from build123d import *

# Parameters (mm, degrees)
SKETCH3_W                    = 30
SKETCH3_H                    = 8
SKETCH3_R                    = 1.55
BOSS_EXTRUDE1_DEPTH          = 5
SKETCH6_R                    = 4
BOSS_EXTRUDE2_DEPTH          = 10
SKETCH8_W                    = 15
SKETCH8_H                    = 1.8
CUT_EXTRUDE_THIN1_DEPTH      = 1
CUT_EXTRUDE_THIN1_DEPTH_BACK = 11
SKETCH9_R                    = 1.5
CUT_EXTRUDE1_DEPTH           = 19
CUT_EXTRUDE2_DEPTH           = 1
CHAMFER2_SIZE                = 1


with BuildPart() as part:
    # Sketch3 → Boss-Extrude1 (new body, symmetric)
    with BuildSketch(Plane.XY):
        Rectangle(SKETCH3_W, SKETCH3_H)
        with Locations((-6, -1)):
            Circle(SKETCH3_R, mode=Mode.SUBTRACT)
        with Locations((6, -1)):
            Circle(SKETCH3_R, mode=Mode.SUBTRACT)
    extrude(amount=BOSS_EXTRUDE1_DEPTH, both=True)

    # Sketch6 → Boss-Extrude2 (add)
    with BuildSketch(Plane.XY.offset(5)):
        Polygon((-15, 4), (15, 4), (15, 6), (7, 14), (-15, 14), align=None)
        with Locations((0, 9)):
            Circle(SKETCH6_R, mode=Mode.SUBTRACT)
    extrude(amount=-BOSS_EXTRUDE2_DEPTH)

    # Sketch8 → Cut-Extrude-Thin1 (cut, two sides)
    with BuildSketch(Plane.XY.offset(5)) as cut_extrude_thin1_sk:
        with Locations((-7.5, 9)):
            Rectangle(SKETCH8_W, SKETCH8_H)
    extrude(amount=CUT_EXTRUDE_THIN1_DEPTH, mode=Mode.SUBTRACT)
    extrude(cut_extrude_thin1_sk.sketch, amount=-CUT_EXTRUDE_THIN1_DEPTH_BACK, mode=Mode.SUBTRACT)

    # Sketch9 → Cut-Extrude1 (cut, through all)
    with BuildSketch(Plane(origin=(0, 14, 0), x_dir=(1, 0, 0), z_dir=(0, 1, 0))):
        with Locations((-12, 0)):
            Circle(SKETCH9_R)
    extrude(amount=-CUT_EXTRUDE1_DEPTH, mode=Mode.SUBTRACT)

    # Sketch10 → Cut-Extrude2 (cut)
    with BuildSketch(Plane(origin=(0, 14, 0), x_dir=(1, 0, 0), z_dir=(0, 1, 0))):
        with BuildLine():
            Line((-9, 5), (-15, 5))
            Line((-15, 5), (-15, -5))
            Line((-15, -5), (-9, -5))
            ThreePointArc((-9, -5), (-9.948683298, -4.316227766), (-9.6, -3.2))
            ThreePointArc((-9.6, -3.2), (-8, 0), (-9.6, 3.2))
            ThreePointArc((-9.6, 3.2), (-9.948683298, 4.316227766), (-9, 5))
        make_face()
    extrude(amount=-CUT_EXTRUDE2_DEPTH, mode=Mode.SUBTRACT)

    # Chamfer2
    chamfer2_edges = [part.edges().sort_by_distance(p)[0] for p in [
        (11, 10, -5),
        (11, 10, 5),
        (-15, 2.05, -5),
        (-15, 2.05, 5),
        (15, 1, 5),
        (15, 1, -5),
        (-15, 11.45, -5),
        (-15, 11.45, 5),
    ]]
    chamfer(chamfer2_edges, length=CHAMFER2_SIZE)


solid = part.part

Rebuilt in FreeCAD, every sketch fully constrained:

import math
import FreeCAD as App
import Part
import Sketcher

V = App.Vector
Q = App.Units.Quantity


def edges_at(feature, points):
    """Names of the edges that pass closest to the given points."""
    edges = feature.Shape.Edges
    near = lambda p: min(range(len(edges)), key=lambda i: edges[i].distToShape(Part.Vertex(*p))[0])
    return sorted({f"Edge{near(p) + 1}" for p in points})


def add_polygon(sketch, points):
    """Adds a closed chain of lines whose ends are joined by coincident constraints."""
    first, n = sketch.GeometryCount, len(points)
    for a, b in zip(points, points[1:] + points[:1]):
        sketch.addGeometry(Part.LineSegment(App.Vector(*a, 0), App.Vector(*b, 0)), False)
    for i in range(n):
        sketch.addConstraint(Sketcher.Constraint("Coincident", first + i, 2, first + (i + 1) % n, 1))

doc = App.newDocument("Part")
body = doc.addObject("PartDesign::Body", "Body")

sketch1 = body.newObject("Sketcher::SketchObject", "Sketch")
sketch1.AttachmentSupport = (doc.getObject("XY_Plane"), [""])
sketch1.MapMode = "FlatFace"
add_polygon(sketch1, [(-15, 4), (-15, -4), (15, -4), (15, 4)])
sketch1.addGeometry(Part.Circle(V(-6, -1, 0), V(0, 0, 1), 1.6), False)
sketch1.addGeometry(Part.Circle(V(6, -1, 0), V(0, 0, 1), 1.6), False)
sketch1.addConstraint([
    Sketcher.Constraint("Vertical", 0),
    Sketcher.Constraint("Horizontal", 1),
    Sketcher.Constraint("Vertical", 2),
    Sketcher.Constraint("Horizontal", 3),
    Sketcher.Constraint("Equal", 4, 5),
    Sketcher.Constraint("Symmetric", 0, 2, 2, 2, -1, 1),
    Sketcher.Constraint("Symmetric", 4, 3, 5, 3, -2),
    Sketcher.Constraint("Diameter", 4, Q("3.1 mm")),
    Sketcher.Constraint("DistanceX", 1, 1, 1, 2, Q("30 mm")),
    Sketcher.Constraint("DistanceY", 0, 2, 0, 1, Q("8 mm")),
    Sketcher.Constraint("DistanceX", 4, 3, -1, 1, Q("6 mm")),
    Sketcher.Constraint("DistanceY", 4, 3, -1, 1, Q("1 mm")),
])
pad1 = body.newObject("PartDesign::Pad", "Pad")
pad1.Profile = sketch1
pad1.Length = 10
pad1.Midplane = True

sketch2 = body.newObject("Sketcher::SketchObject", "Sketch001")
sketch2.AttachmentSupport = (doc.getObject("XY_Plane"), [""])
sketch2.MapMode = "FlatFace"
sketch2.AttachmentOffset = App.Placement(V(0, 0, 5), App.Rotation())
add_polygon(sketch2, [(-15, 4), (15, 4), (15, 6), (7, 14), (-15, 14)])
sketch2.addGeometry(Part.Circle(V(0, 9, 0), V(0, 0, 1), 4), False)
sketch2.addConstraint([
    Sketcher.Constraint("Horizontal", 0),
    Sketcher.Constraint("Vertical", 1),
    Sketcher.Constraint("Horizontal", 3),
    Sketcher.Constraint("Vertical", 4),
    Sketcher.Constraint("PointOnObject", 5, 3, -2),
    Sketcher.Constraint("Diameter", 5, Q("8 mm")),
    Sketcher.Constraint("DistanceX", 0, 1, 0, 2, Q("30 mm")),
    Sketcher.Constraint("DistanceX", 3, 2, 3, 1, Q("22 mm")),
    Sketcher.Constraint("DistanceY", 1, 1, 1, 2, Q("2 mm")),
    Sketcher.Constraint("DistanceY", 4, 2, 4, 1, Q("10 mm")),
    Sketcher.Constraint("DistanceY", -1, 1, 5, 3, Q("9 mm")),
    Sketcher.Constraint("DistanceX", -1, 1, 0, 2, Q("15 mm")),
    Sketcher.Constraint("DistanceY", -1, 1, 0, 2, Q("4 mm")),
])
pad2 = body.newObject("PartDesign::Pad", "Pad001")
pad2.Profile = sketch2
pad2.Length = 10
pad2.Reversed = True

sketch3 = body.newObject("Sketcher::SketchObject", "Sketch002")
sketch3.AttachmentSupport = (doc.getObject("XY_Plane"), [""])
sketch3.MapMode = "FlatFace"
sketch3.AttachmentOffset = App.Placement(V(0, 0, 5), App.Rotation())
add_polygon(sketch3, [(-15, 9.9), (-15, 8.1), (0, 8.1), (0, 9.9)])
sketch3.addConstraint([
    Sketcher.Constraint("Vertical", 0),
    Sketcher.Constraint("Horizontal", 1),
    Sketcher.Constraint("Vertical", 2),
    Sketcher.Constraint("Horizontal", 3),
    Sketcher.Constraint("PointOnObject", 1, 2, -2),
    Sketcher.Constraint("DistanceX", 1, 1, 1, 2, Q("15 mm")),
    Sketcher.Constraint("DistanceY", 0, 2, 0, 1, Q("1.8 mm")),
    Sketcher.Constraint("DistanceY", -1, 1, 0, 2, Q("8.1 mm")),
])
pocket1 = body.newObject("PartDesign::Pocket", "Pocket")
pocket1.Profile = sketch3
pocket1.Type = "ThroughAll"
pocket1.Midplane = True

sketch4 = body.newObject("Sketcher::SketchObject", "Sketch003")
sketch4.AttachmentSupport = (doc.getObject("XZ_Plane"), [""])
sketch4.MapMode = "FlatFace"
sketch4.AttachmentOffset = App.Placement(V(0, 0, -14), App.Rotation())
sketch4.addGeometry(Part.Circle(V(-12, 0, 0), V(0, 0, 1), 1.5), False)
sketch4.addConstraint([
    Sketcher.Constraint("PointOnObject", 0, 3, -1),
    Sketcher.Constraint("Diameter", 0, Q("3 mm")),
    Sketcher.Constraint("DistanceX", 0, 3, -1, 1, Q("12 mm")),
])
pocket2 = body.newObject("PartDesign::Pocket", "Pocket001")
pocket2.Profile = sketch4
pocket2.Type = "ThroughAll"
pocket2.Reversed = True

sketch5 = body.newObject("Sketcher::SketchObject", "Sketch004")
sketch5.AttachmentSupport = (doc.getObject("XZ_Plane"), [""])
sketch5.MapMode = "FlatFace"
sketch5.AttachmentOffset = App.Placement(V(0, 0, -14), App.Rotation())
sketch5.addGeometry([
    Part.LineSegment(V(-9, -5, 0), V(-15, -5, 0)),
    Part.LineSegment(V(-15, -5, 0), V(-15, 5, 0)),
    Part.LineSegment(V(-15, 5, 0), V(-9, 5, 0)),
    Part.ArcOfCircle(Part.Circle(V(-9, 4, 0), V(0, 0, 1), 1), math.radians(90), math.radians(233)),
    Part.ArcOfCircle(Part.Circle(V(-12, 0, 0), V(0, 0, 1), 4), math.radians(-53), math.radians(53)),
    Part.ArcOfCircle(Part.Circle(V(-9, -4, 0), V(0, 0, 1), 1), math.radians(127), math.radians(270)),
], False)
sketch5.addConstraint([
    Sketcher.Constraint("Coincident", 0, 2, 1, 1),
    Sketcher.Constraint("Coincident", 1, 2, 2, 1),
    Sketcher.Constraint("Tangent", 2, 2, 3, 1),
    Sketcher.Constraint("Tangent", 3, 2, 4, 2),
    Sketcher.Constraint("Tangent", 4, 1, 5, 1),
    Sketcher.Constraint("Tangent", 5, 2, 0, 1),
    Sketcher.Constraint("Horizontal", 0),
    Sketcher.Constraint("Vertical", 1),
    Sketcher.Constraint("Horizontal", 2),
    Sketcher.Constraint("Equal", 3, 5),
    Sketcher.Constraint("Symmetric", 3, 3, 5, 3, -1),
    Sketcher.Constraint("Radius", 3, Q("1 mm")),
    Sketcher.Constraint("Radius", 4, Q("4 mm")),
    Sketcher.Constraint("DistanceX", 0, 2, 0, 1, Q("6 mm")),
    Sketcher.Constraint("DistanceY", 1, 1, 1, 2, Q("10 mm")),
    Sketcher.Constraint("DistanceX", 3, 3, -1, 1, Q("9 mm")),
])
pocket3 = body.newObject("PartDesign::Pocket", "Pocket002")
pocket3.Profile = sketch5
pocket3.Length = 1
pocket3.Reversed = True
doc.recompute()

chamfer = body.newObject("PartDesign::Chamfer", "Chamfer")
chamfer.Base = (pocket3, edges_at(pocket3, [
    (11, 10, -5),
    (11, 10, 5),
    (-15, 2.05, -5),
    (-15, 2.05, 5),
    (15, 1, 5),
    (15, 1, -5),
    (-15, 11.45, -5),
    (-15, 11.45, 5),
]))
chamfer.Size = 1

doc.recompute()
